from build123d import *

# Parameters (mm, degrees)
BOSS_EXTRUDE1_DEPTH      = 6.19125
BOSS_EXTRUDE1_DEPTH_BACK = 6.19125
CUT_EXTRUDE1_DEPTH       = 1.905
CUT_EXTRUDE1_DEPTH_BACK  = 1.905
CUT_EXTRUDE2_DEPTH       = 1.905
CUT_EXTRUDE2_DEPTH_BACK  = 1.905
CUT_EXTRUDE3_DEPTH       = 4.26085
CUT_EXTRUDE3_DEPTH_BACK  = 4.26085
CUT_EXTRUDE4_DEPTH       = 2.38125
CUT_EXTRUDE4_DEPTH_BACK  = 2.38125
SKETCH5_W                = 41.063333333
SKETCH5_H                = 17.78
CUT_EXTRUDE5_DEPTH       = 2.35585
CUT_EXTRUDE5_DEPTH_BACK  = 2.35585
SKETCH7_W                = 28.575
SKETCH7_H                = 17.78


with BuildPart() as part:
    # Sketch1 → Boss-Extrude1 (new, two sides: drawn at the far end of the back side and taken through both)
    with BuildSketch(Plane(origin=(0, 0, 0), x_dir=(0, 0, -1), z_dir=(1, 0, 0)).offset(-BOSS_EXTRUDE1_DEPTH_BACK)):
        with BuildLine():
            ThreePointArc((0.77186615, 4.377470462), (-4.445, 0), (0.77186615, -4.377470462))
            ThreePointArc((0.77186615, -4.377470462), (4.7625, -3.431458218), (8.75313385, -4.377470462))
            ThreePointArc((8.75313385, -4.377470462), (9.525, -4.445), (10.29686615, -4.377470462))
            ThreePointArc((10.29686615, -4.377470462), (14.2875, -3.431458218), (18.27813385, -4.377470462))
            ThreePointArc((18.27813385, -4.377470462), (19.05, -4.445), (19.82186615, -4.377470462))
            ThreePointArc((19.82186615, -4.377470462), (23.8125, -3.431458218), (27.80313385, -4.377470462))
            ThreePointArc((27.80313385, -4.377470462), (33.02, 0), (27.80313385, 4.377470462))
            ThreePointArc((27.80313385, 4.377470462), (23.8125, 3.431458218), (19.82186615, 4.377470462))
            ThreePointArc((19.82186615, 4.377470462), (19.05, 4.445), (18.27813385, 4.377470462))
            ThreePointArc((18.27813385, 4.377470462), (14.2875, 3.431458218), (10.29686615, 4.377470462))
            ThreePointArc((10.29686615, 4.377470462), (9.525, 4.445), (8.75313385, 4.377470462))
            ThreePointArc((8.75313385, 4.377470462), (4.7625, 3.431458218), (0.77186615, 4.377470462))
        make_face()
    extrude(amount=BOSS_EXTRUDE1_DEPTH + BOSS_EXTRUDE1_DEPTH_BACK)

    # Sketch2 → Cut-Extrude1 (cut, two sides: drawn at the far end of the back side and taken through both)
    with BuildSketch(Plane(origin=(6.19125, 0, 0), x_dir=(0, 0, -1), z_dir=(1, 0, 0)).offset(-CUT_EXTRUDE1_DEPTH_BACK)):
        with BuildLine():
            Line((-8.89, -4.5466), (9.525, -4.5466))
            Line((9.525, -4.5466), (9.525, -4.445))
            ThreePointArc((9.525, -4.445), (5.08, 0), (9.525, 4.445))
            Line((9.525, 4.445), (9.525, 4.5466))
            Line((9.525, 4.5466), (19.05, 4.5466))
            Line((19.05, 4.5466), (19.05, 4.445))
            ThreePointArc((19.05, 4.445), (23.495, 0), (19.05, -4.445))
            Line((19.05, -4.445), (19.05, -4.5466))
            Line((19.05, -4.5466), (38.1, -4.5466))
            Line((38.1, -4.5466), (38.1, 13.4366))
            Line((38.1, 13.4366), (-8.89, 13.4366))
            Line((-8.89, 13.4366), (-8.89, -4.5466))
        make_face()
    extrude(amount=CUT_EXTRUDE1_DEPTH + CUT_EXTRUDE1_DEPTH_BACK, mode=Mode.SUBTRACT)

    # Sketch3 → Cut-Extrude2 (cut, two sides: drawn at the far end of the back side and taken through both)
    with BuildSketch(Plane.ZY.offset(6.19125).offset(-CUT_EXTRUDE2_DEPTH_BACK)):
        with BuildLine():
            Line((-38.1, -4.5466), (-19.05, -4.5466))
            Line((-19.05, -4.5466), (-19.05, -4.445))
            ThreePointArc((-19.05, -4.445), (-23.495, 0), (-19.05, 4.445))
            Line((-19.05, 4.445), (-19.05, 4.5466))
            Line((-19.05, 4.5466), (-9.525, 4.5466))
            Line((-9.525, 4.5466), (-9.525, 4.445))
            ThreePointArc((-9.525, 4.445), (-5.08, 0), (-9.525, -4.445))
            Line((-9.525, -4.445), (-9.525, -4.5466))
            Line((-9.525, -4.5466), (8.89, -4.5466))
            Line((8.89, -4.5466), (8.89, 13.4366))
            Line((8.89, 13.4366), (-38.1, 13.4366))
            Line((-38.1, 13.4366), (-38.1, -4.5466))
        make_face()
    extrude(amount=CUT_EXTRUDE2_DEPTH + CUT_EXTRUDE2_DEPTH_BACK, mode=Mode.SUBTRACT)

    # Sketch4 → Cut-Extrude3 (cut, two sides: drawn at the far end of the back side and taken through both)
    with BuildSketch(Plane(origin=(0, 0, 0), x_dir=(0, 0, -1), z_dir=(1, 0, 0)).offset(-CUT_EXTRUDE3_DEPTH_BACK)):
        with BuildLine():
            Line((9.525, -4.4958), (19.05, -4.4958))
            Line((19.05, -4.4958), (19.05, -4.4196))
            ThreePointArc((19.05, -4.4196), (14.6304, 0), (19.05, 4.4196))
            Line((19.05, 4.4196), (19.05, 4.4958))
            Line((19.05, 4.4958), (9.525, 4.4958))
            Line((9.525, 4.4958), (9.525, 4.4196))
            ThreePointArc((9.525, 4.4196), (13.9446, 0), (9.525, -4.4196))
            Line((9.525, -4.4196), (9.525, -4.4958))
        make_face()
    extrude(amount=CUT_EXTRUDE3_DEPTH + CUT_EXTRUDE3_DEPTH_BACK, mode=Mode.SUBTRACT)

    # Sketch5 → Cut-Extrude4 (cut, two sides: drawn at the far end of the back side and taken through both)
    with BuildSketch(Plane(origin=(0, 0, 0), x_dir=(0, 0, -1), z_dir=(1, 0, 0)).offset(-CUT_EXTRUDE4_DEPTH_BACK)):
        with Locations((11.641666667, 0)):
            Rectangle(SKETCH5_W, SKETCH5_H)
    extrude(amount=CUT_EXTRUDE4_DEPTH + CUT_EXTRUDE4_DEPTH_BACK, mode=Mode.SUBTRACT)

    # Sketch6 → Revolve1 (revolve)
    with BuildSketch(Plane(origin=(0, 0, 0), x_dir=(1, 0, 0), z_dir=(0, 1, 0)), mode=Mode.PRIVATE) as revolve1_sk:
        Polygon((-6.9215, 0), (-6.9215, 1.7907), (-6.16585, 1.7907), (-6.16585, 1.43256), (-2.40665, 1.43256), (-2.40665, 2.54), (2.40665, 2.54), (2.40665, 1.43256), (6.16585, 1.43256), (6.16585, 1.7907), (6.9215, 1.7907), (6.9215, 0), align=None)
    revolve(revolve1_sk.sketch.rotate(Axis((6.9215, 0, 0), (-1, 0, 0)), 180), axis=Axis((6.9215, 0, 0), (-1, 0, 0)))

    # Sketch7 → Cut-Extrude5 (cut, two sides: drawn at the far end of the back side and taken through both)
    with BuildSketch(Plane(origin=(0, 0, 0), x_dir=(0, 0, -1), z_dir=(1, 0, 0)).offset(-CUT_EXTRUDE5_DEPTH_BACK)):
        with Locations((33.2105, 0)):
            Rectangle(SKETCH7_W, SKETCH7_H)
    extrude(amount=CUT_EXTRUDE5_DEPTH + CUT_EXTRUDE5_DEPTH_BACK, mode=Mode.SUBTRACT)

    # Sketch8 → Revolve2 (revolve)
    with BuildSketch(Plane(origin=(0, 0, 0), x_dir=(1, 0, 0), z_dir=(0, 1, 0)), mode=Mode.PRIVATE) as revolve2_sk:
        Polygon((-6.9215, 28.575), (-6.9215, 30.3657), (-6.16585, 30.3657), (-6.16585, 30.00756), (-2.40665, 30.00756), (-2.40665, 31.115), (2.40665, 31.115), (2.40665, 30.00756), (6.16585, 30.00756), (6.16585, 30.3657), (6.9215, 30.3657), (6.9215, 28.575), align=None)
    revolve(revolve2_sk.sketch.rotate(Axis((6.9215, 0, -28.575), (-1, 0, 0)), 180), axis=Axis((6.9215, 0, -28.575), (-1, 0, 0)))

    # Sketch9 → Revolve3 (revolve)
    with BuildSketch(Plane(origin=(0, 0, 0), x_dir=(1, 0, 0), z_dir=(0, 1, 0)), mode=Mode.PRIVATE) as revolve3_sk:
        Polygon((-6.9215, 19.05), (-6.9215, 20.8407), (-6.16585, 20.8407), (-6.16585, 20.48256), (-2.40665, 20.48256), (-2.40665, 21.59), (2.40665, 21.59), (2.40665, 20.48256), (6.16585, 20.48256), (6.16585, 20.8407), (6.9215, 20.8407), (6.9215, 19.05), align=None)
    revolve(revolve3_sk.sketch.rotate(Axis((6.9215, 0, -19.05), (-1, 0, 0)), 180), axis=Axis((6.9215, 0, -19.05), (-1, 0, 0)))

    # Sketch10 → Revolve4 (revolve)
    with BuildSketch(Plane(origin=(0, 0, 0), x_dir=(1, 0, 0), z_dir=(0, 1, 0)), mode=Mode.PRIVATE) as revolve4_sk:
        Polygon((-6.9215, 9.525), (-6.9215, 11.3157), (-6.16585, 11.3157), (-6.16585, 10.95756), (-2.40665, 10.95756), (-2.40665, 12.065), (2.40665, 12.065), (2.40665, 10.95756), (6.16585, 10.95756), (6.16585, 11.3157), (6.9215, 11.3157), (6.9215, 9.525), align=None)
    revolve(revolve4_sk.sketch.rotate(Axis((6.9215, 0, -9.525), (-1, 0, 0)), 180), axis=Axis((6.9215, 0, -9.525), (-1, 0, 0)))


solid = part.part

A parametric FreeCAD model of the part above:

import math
import FreeCAD as App
import Part
import Sketcher

V = App.Vector
Q = App.Units.Quantity

doc = App.newDocument("Part")
body = doc.addObject("PartDesign::Body", "Body")

sketch1 = body.newObject("Sketcher::SketchObject", "Sketch")
sketch1.AttachmentSupport = (doc.getObject("YZ_Plane"), [""])
sketch1.MapMode = "FlatFace"
sketch1.addGeometry([
    Part.ArcOfCircle(Part.Circle(V(0, 0, 0), V(0, 0, 1), 4.4), math.radians(-10), math.radians(190)),
    Part.ArcOfCircle(Part.Circle(V(-12.3, -4.8, 0), V(0, 0, 1), 8.9), math.radians(-27), math.radians(27)),
    Part.ArcOfCircle(Part.Circle(V(0, -9.5, 0), V(0, 0, 1), 4.4), math.radians(170), math.radians(190)),
    Part.ArcOfCircle(Part.Circle(V(-12.3, -14.3, 0), V(0, 0, 1), 8.9), math.radians(-27), math.radians(27)),
    Part.ArcOfCircle(Part.Circle(V(0, -19.1, 0), V(0, 0, 1), 4.4), math.radians(170), math.radians(190)),
    Part.ArcOfCircle(Part.Circle(V(-12.3, -23.8, 0), V(0, 0, 1), 8.9), math.radians(-27), math.radians(27)),
    Part.ArcOfCircle(Part.Circle(V(0, -28.6, 0), V(0, 0, 1), 4.4), math.radians(170), math.radians(370)),
    Part.ArcOfCircle(Part.Circle(V(12.3, -23.8, 0), V(0, 0, 1), 8.9), math.radians(153), math.radians(207)),
    Part.ArcOfCircle(Part.Circle(V(0, -19.1, 0), V(0, 0, 1), 4.4), math.radians(-10), math.radians(10)),
    Part.ArcOfCircle(Part.Circle(V(12.3, -14.3, 0), V(0, 0, 1), 8.9), math.radians(153), math.radians(207)),
    Part.ArcOfCircle(Part.Circle(V(0, -9.5, 0), V(0, 0, 1), 4.4), math.radians(-10), math.radians(10)),
    Part.ArcOfCircle(Part.Circle(V(12.3, -4.8, 0), V(0, 0, 1), 8.9), math.radians(153), math.radians(207)),
], False)
sketch1.addConstraint([
    Sketcher.Constraint("Coincident", 0, 2, 1, 2),
    Sketcher.Constraint("Coincident", 1, 1, 2, 1),
    Sketcher.Constraint("Coincident", 2, 2, 3, 2),
    Sketcher.Constraint("Coincident", 3, 1, 4, 1),
    Sketcher.Constraint("Coincident", 4, 2, 5, 2),
    Sketcher.Constraint("Coincident", 5, 1, 6, 1),
    Sketcher.Constraint("Coincident", 6, 2, 7, 2),
    Sketcher.Constraint("Coincident", 7, 1, 8, 1),
    Sketcher.Constraint("Coincident", 8, 2, 9, 2),
    Sketcher.Constraint("Coincident", 9, 1, 10, 1),
    Sketcher.Constraint("Coincident", 10, 2, 11, 2),
    Sketcher.Constraint("Coincident", 11, 1, 0, 1),
    Sketcher.Constraint("Coincident", 0, 3, -1, 1),
    Sketcher.Constraint("Coincident", 8, 3, 4, 3),
    Sketcher.Constraint("Coincident", 10, 3, 2, 3),
    Sketcher.Constraint("Equal", 0, 2),
    Sketcher.Constraint("Equal", 1, 3),
    Sketcher.Constraint("Equal", 2, 4),
    Sketcher.Constraint("Equal", 3, 5),
    Sketcher.Constraint("Equal", 4, 6),
    Sketcher.Constraint("Equal", 5, 7),
    Sketcher.Constraint("Equal", 6, 8),
    Sketcher.Constraint("Equal", 7, 9),
    Sketcher.Constraint("Equal", 8, 10),
    Sketcher.Constraint("Equal", 9, 11),
    Sketcher.Constraint("Symmetric", 5, 3, 7, 3, -2),
    Sketcher.Constraint("Symmetric", 3, 3, 9, 3, -2),
    Sketcher.Constraint("Symmetric", 1, 3, 11, 3, -2),
    Sketcher.Constraint("PointOnObject", 2, 3, -2),
    Sketcher.Constraint("PointOnObject", 4, 3, -2),
    Sketcher.Constraint("PointOnObject", 6, 3, -2),
    Sketcher.Constraint("Vertical", 1, 3, 3, 3),
    Sketcher.Constraint("Vertical", 3, 3, 5, 3),
    Sketcher.Constraint("Vertical", 0, 2, 1, 1),
    Sketcher.Constraint("Vertical", 1, 1, 2, 2),
    Sketcher.Constraint("Vertical", 2, 2, 3, 1),
    Sketcher.Constraint("Vertical", 3, 1, 4, 2),
    Sketcher.Constraint("Vertical", 4, 2, 5, 1),
    Sketcher.Constraint("Radius", 1, Q("0.35 in")),
    Sketcher.Constraint("Radius", 0, Q("0.175 in")),
    Sketcher.Constraint("DistanceY", 4, 3, -1, 1, Q("0.75 in")),
    Sketcher.Constraint("DistanceX", 1, 3, -1, 1, 12.321458),
])
pad1 = body.newObject("PartDesign::Pad", "Pad")
pad1.Profile = sketch1
pad1.Type = "TwoLengths"
pad1.Length = 6.19125
pad1.Length2 = 6.19125

sketch2 = body.newObject("Sketcher::SketchObject", "Sketch001")
sketch2.AttachmentSupport = (doc.getObject("YZ_Plane"), [""])
sketch2.MapMode = "FlatFace"
sketch2.AttachmentOffset = App.Placement(V(0, 0, 6.19125), App.Rotation())
sketch2.addGeometry([
    Part.LineSegment(V(-4.55, 8.89, 0), V(-4.55, -9.53, 0)),
    Part.LineSegment(V(-4.55, -9.53, 0), V(-4.45, -9.53, 0)),
    Part.ArcOfCircle(Part.Circle(V(0, -9.53, 0), V(0, 0, 1), 4.45), math.radians(0), math.radians(180)),
    Part.LineSegment(V(4.45, -9.53, 0), V(4.55, -9.53, 0)),
    Part.LineSegment(V(4.55, -9.53, 0), V(4.55, -19.05, 0)),
    Part.LineSegment(V(4.55, -19.05, 0), V(4.45, -19.05, 0)),
    Part.ArcOfCircle(Part.Circle(V(0, -19.05, 0), V(0, 0, 1), 4.45), math.radians(180), math.radians(360)),
    Part.LineSegment(V(-4.45, -19.05, 0), V(-4.55, -19.05, 0)),
    Part.LineSegment(V(-4.55, -19.05, 0), V(-4.55, -38.1, 0)),
    Part.LineSegment(V(-4.55, -38.1, 0), V(13.44, -38.1, 0)),
    Part.LineSegment(V(13.44, -38.1, 0), V(13.44, 8.89, 0)),
    Part.LineSegment(V(13.44, 8.89, 0), V(-4.55, 8.89, 0)),
], False)
sketch2.addConstraint([
    Sketcher.Constraint("Coincident", 0, 2, 1, 1),
    Sketcher.Constraint("Coincident", 1, 2, 2, 2),
    Sketcher.Constraint("Coincident", 2, 1, 3, 1),
    Sketcher.Constraint("Coincident", 3, 2, 4, 1),
    Sketcher.Constraint("Coincident", 4, 2, 5, 1),
    Sketcher.Constraint("Coincident", 5, 2, 6, 2),
    Sketcher.Constraint("Coincident", 6, 1, 7, 1),
    Sketcher.Constraint("Coincident", 7, 2, 8, 1),
    Sketcher.Constraint("Coincident", 8, 2, 9, 1),
    Sketcher.Constraint("Coincident", 9, 2, 10, 1),
    Sketcher.Constraint("Coincident", 10, 2, 11, 1),
    Sketcher.Constraint("Coincident", 11, 2, 0, 1),
    Sketcher.Constraint("Vertical", 0),
    Sketcher.Constraint("Horizontal", 1),
    Sketcher.Constraint("Horizontal", 3),
    Sketcher.Constraint("Vertical", 4),
    Sketcher.Constraint("Horizontal", 5),
    Sketcher.Constraint("Horizontal", 7),
    Sketcher.Constraint("Vertical", 8),
    Sketcher.Constraint("Horizontal", 9),
    Sketcher.Constraint("Vertical", 10),
    Sketcher.Constraint("Horizontal", 11),
    Sketcher.Constraint("Equal", 2, 6),
    Sketcher.Constraint("Symmetric", 1, 2, 2, 1, -2),
    Sketcher.Constraint("Symmetric", 5, 2, 6, 1, -2),
    Sketcher.Constraint("Horizontal", 2, 3, 0, 2),
    Sketcher.Constraint("Horizontal", 6, 3, 4, 2),
    Sketcher.Constraint("Vertical", 0, 2, 7, 2),
    Sketcher.Constraint("Equal", 1, 3),
    Sketcher.Constraint("Radius", 2, Q("0.175 in")),
    Sketcher.Constraint("DistanceY", 8, 2, 8, 1, Q("0.75 in")),
    Sketcher.Constraint("DistanceY", 10, 1, 10, 2, Q("1.85 in")),
    Sketcher.Constraint("DistanceY", 8, 2, -1, 1, Q("1.5 in")),
    Sketcher.Constraint("DistanceX", 1, 1, 1, 2, Q("0.004 in")),
    Sketcher.Constraint("DistanceX", 9, 1, 9, 2, Q("0.708 in")),
    Sketcher.Constraint("DistanceY", 0, 2, 0, 1, Q("0.725 in")),
])
pocket1 = body.newObject("PartDesign::Pocket", "Pocket")
pocket1.Profile = sketch2
pocket1.Type = "TwoLengths"
pocket1.Length = Q("0.075 in")
pocket1.Length2 = Q("0.075 in")
pocket1.Reversed = True

sketch3 = body.newObject("Sketcher::SketchObject", "Sketch002")
sketch3.AttachmentSupport = (doc.getObject("YZ_Plane"), [""])
sketch3.MapMode = "FlatFace"
sketch3.AttachmentOffset = App.Placement(V(0, 0, -6.19125), App.Rotation())
sketch3.addGeometry([
    Part.LineSegment(V(-4.55, -38.1, 0), V(-4.55, -19.05, 0)),
    Part.LineSegment(V(-4.55, -19.05, 0), V(-4.45, -19.05, 0)),
    Part.ArcOfCircle(Part.Circle(V(0, -19.05, 0), V(0, 0, 1), 4.45), math.radians(180), math.radians(360)),
    Part.LineSegment(V(4.45, -19.05, 0), V(4.55, -19.05, 0)),
    Part.LineSegment(V(4.55, -19.05, 0), V(4.55, -9.53, 0)),
    Part.LineSegment(V(4.55, -9.53, 0), V(4.45, -9.53, 0)),
    Part.ArcOfCircle(Part.Circle(V(0, -9.53, 0), V(0, 0, 1), 4.45), math.radians(0), math.radians(180)),
    Part.LineSegment(V(-4.45, -9.53, 0), V(-4.55, -9.53, 0)),
    Part.LineSegment(V(-4.55, -9.53, 0), V(-4.55, 8.89, 0)),
    Part.LineSegment(V(-4.55, 8.89, 0), V(13.44, 8.89, 0)),
    Part.LineSegment(V(13.44, 8.89, 0), V(13.44, -38.1, 0)),
    Part.LineSegment(V(13.44, -38.1, 0), V(-4.55, -38.1, 0)),
], False)
sketch3.addConstraint([
    Sketcher.Constraint("Coincident", 0, 2, 1, 1),
    Sketcher.Constraint("Coincident", 1, 2, 2, 1),
    Sketcher.Constraint("Coincident", 2, 2, 3, 1),
    Sketcher.Constraint("Coincident", 3, 2, 4, 1),
    Sketcher.Constraint("Coincident", 4, 2, 5, 1),
    Sketcher.Constraint("Coincident", 5, 2, 6, 1),
    Sketcher.Constraint("Coincident", 6, 2, 7, 1),
    Sketcher.Constraint("Coincident", 7, 2, 8, 1),
    Sketcher.Constraint("Coincident", 8, 2, 9, 1),
    Sketcher.Constraint("Coincident", 9, 2, 10, 1),
    Sketcher.Constraint("Coincident", 10, 2, 11, 1),
    Sketcher.Constraint("Coincident", 11, 2, 0, 1),
    Sketcher.Constraint("Vertical", 0),
    Sketcher.Constraint("Horizontal", 1),
    Sketcher.Constraint("Horizontal", 3),
    Sketcher.Constraint("Vertical", 4),
    Sketcher.Constraint("Horizontal", 5),
    Sketcher.Constraint("Horizontal", 7),
    Sketcher.Constraint("Vertical", 8),
    Sketcher.Constraint("Horizontal", 9),
    Sketcher.Constraint("Vertical", 10),
    Sketcher.Constraint("Horizontal", 11),
    Sketcher.Constraint("Equal", 2, 6),
    Sketcher.Constraint("Symmetric", 1, 2, 2, 2, -2),
    Sketcher.Constraint("Symmetric", 5, 2, 6, 2, -2),
    Sketcher.Constraint("Horizontal", 2, 3, 0, 2),
    Sketcher.Constraint("Horizontal", 6, 3, 4, 2),
    Sketcher.Constraint("Vertical", 0, 2, 7, 2),
    Sketcher.Constraint("Equal", 1, 3),
    Sketcher.Constraint("Radius", 2, Q("0.175 in")),
    Sketcher.Constraint("DistanceY", 0, 1, 0, 2, Q("0.75 in")),
    Sketcher.Constraint("DistanceY", 10, 2, 10, 1, Q("1.85 in")),
    Sketcher.Constraint("DistanceY", 10, 2, -1, 1, Q("1.5 in")),
    Sketcher.Constraint("DistanceX", 1, 1, 1, 2, Q("0.004 in")),
    Sketcher.Constraint("DistanceX", 9, 1, 9, 2, Q("0.708 in")),
    Sketcher.Constraint("DistanceY", 4, 1, 4, 2, Q("0.375 in")),
])
pocket2 = body.newObject("PartDesign::Pocket", "Pocket001")
pocket2.Profile = sketch3
pocket2.Type = "TwoLengths"
pocket2.Length = Q("0.075 in")
pocket2.Length2 = Q("0.075 in")

sketch4 = body.newObject("Sketcher::SketchObject", "Sketch003")
sketch4.AttachmentSupport = (doc.getObject("YZ_Plane"), [""])
sketch4.MapMode = "FlatFace"
sketch4.addGeometry([
    Part.LineSegment(V(-4.5, -9.53, 0), V(-4.5, -19.05, 0)),
    Part.LineSegment(V(-4.5, -19.05, 0), V(-4.42, -19.05, 0)),
    Part.ArcOfCircle(Part.Circle(V(0, -19.05, 0), V(0, 0, 1), 4.42), math.radians(0), math.radians(180)),
    Part.LineSegment(V(4.42, -19.05, 0), V(4.5, -19.05, 0)),
    Part.LineSegment(V(4.5, -19.05, 0), V(4.5, -9.53, 0)),
    Part.LineSegment(V(4.5, -9.53, 0), V(4.42, -9.53, 0)),
    Part.ArcOfCircle(Part.Circle(V(0, -9.53, 0), V(0, 0, 1), 4.42), math.radians(180), math.radians(360)),
    Part.LineSegment(V(-4.42, -9.53, 0), V(-4.5, -9.53, 0)),
], False)
sketch4.addConstraint([
    Sketcher.Constraint("Coincident", 0, 2, 1, 1),
    Sketcher.Constraint("Coincident", 1, 2, 2, 2),
    Sketcher.Constraint("Coincident", 2, 1, 3, 1),
    Sketcher.Constraint("Coincident", 3, 2, 4, 1),
    Sketcher.Constraint("Coincident", 4, 2, 5, 1),
    Sketcher.Constraint("Coincident", 5, 2, 6, 2),
    Sketcher.Constraint("Coincident", 6, 1, 7, 1),
    Sketcher.Constraint("Coincident", 7, 2, 0, 1),
    Sketcher.Constraint("Vertical", 0),
    Sketcher.Constraint("Horizontal", 1),
    Sketcher.Constraint("Horizontal", 3),
    Sketcher.Constraint("Vertical", 4),
    Sketcher.Constraint("Horizontal", 5),
    Sketcher.Constraint("Horizontal", 7),
    Sketcher.Constraint("Equal", 2, 6),
    Sketcher.Constraint("Symmetric", 1, 2, 2, 1, -2),
    Sketcher.Constraint("Symmetric", 5, 2, 6, 1, -2),
    Sketcher.Constraint("Horizontal", 2, 3, 0, 2),
    Sketcher.Constraint("Horizontal", 6, 3, 4, 2),
    Sketcher.Constraint("Equal", 1, 3),
    Sketcher.Constraint("Radius", 2, Q("0.174 in")),
    Sketcher.Constraint("DistanceX", 1, 1, 1, 2, Q("0.003 in")),
    Sketcher.Constraint("DistanceY", 0, 2, 0, 1, Q("0.375 in")),
    Sketcher.Constraint("DistanceY", 2, 3, -1, 1, Q("0.75 in")),
])
pocket3 = body.newObject("PartDesign::Pocket", "Pocket002")
pocket3.Profile = sketch4
pocket3.Type = "TwoLengths"
pocket3.Length = 4.26085
pocket3.Length2 = 4.26085
pocket3.Reversed = True

sketch5 = body.newObject("Sketcher::SketchObject", "Sketch004")
sketch5.AttachmentSupport = (doc.getObject("YZ_Plane"), [""])
sketch5.MapMode = "FlatFace"
sketch5.addGeometry([
    Part.LineSegment(V(9, 9, 0), V(-9, 9, 0)),
    Part.LineSegment(V(-9, 9, 0), V(-9, -32, 0)),
    Part.LineSegment(V(-9, -32, 0), V(9, -32, 0)),
    Part.LineSegment(V(9, -32, 0), V(9, 9, 0)),
], False)
sketch5.addConstraint([
    Sketcher.Constraint("Coincident", 0, 2, 1, 1),
    Sketcher.Constraint("Coincident", 1, 2, 2, 1),
    Sketcher.Constraint("Coincident", 2, 2, 3, 1),
    Sketcher.Constraint("Coincident", 3, 2, 0, 1),
    Sketcher.Constraint("Horizontal", 0),
    Sketcher.Constraint("Vertical", 1),
    Sketcher.Constraint("Horizontal", 2),
    Sketcher.Constraint("Vertical", 3),
    Sketcher.Constraint("DistanceX", 0, 2, 0, 1, Q("0.7 in")),
    Sketcher.Constraint("DistanceX", 0, 2, -1, 1, Q("0.35 in")),
    Sketcher.Constraint("DistanceY", -1, 1, 0, 2, Q("0.35 in")),
    Sketcher.Constraint("DistanceY", 1, 2, 1, 1, 41.063333),
])
pocket4 = body.newObject("PartDesign::Pocket", "Pocket003")
pocket4.Profile = sketch5
pocket4.Type = "TwoLengths"
pocket4.Length = Q("0.09375 in")
pocket4.Length2 = Q("0.09375 in")
pocket4.Reversed = True

sketch6 = body.newObject("Sketcher::SketchObject", "Sketch005")
sketch6.AttachmentSupport = (doc.getObject("XZ_Plane"), [""])
sketch6.MapMode = "FlatFace"
sketch6.addGeometry([
    Part.LineSegment(V(-6.92, -1.79, 0), V(-6.92, 0, 0)),
    Part.LineSegment(V(-6.92, 0, 0), V(6.92, 0, 0)),
    Part.LineSegment(V(6.92, 0, 0), V(6.92, -1.79, 0)),
    Part.LineSegment(V(6.92, -1.79, 0), V(6.17, -1.79, 0)),
    Part.LineSegment(V(6.17, -1.79, 0), V(6.17, -1.43, 0)),
    Part.LineSegment(V(6.17, -1.43, 0), V(2.41, -1.43, 0)),
    Part.LineSegment(V(2.41, -1.43, 0), V(2.41, -2.54, 0)),
    Part.LineSegment(V(2.41, -2.54, 0), V(-2.41, -2.54, 0)),
    Part.LineSegment(V(-2.41, -2.54, 0), V(-2.41, -1.43, 0)),
    Part.LineSegment(V(-2.41, -1.43, 0), V(-6.17, -1.43, 0)),
    Part.LineSegment(V(-6.17, -1.43, 0), V(-6.17, -1.79, 0)),
    Part.LineSegment(V(-6.17, -1.79, 0), V(-6.92, -1.79, 0)),
], False)
sketch6.addConstraint([
    Sketcher.Constraint("Coincident", 0, 2, 1, 1),
    Sketcher.Constraint("Coincident", 1, 2, 2, 1),
    Sketcher.Constraint("Coincident", 2, 2, 3, 1),
    Sketcher.Constraint("Coincident", 3, 2, 4, 1),
    Sketcher.Constraint("Coincident", 4, 2, 5, 1),
    Sketcher.Constraint("Coincident", 5, 2, 6, 1),
    Sketcher.Constraint("Coincident", 6, 2, 7, 1),
    Sketcher.Constraint("Coincident", 7, 2, 8, 1),
    Sketcher.Constraint("Coincident", 8, 2, 9, 1),
    Sketcher.Constraint("Coincident", 9, 2, 10, 1),
    Sketcher.Constraint("Coincident", 10, 2, 11, 1),
    Sketcher.Constraint("Coincident", 11, 2, 0, 1),
    Sketcher.Constraint("Vertical", 0),
    Sketcher.Constraint("Horizontal", 1),
    Sketcher.Constraint("Vertical", 2),
    Sketcher.Constraint("Horizontal", 3),
    Sketcher.Constraint("Vertical", 4),
    Sketcher.Constraint("Horizontal", 5),
    Sketcher.Constraint("Vertical", 6),
    Sketcher.Constraint("Horizontal", 7),
    Sketcher.Constraint("Vertical", 8),
    Sketcher.Constraint("Horizontal", 9),
    Sketcher.Constraint("Vertical", 10),
    Sketcher.Constraint("Horizontal", 11),
    Sketcher.Constraint("Symmetric", 0, 2, 1, 2, -1, 1),
    Sketcher.Constraint("Symmetric", 5, 2, 8, 2, -2),
    Sketcher.Constraint("Symmetric", 3, 2, 10, 2, -2),
    Sketcher.Constraint("DistanceY", 6, 2, -1, 1, Q("0.1 in")),
    Sketcher.Constraint("DistanceX", 1, 1, 1, 2, Q("0.545 in")),
    Sketcher.Constraint("DistanceX", 5, 2, 5, 1, Q("0.148 in")),
    Sketcher.Constraint("DistanceX", 7, 2, 7, 1, Q("0.1895 in")),
    Sketcher.Constraint("DistanceY", 0, 1, 0, 2, Q("0.0705 in")),
    Sketcher.Constraint("DistanceY", 4, 1, 4, 2, Q("0.0141 in")),
])
revolution = body.newObject("PartDesign::Revolution", "Revolution")
revolution.Profile = sketch6
revolution.ReferenceAxis = (sketch6, ["H_Axis"])
revolution.Angle = 360

sketch7 = body.newObject("Sketcher::SketchObject", "Sketch006")
sketch7.AttachmentSupport = (doc.getObject("YZ_Plane"), [""])
sketch7.MapMode = "FlatFace"
sketch7.addGeometry([
    Part.LineSegment(V(9, -19, 0), V(-9, -19, 0)),
    Part.LineSegment(V(-9, -19, 0), V(-9, -47, 0)),
    Part.LineSegment(V(-9, -47, 0), V(9, -47, 0)),
    Part.LineSegment(V(9, -47, 0), V(9, -19, 0)),
], False)
sketch7.addConstraint([
    Sketcher.Constraint("Coincident", 0, 2, 1, 1),
    Sketcher.Constraint("Coincident", 1, 2, 2, 1),
    Sketcher.Constraint("Coincident", 2, 2, 3, 1),
    Sketcher.Constraint("Coincident", 3, 2, 0, 1),
    Sketcher.Constraint("Horizontal", 0),
    Sketcher.Constraint("Vertical", 1),
    Sketcher.Constraint("Horizontal", 2),
    Sketcher.Constraint("Vertical", 3),
    Sketcher.Constraint("DistanceX", 0, 2, 0, 1, Q("0.7 in")),
    Sketcher.Constraint("DistanceY", 1, 2, 1, 1, Q("1.125 in")),
    Sketcher.Constraint("DistanceX", 0, 2, -1, 1, Q("0.35 in")),
    Sketcher.Constraint("DistanceY", 1, 2, -1, 1, Q("1.87 in")),
])
pocket5 = body.newObject("PartDesign::Pocket", "Pocket004")
pocket5.Profile = sketch7
pocket5.Type = "TwoLengths"
pocket5.Length = 2.35585
pocket5.Length2 = 2.35585
pocket5.Reversed = True

sketch8 = body.newObject("Sketcher::SketchObject", "Sketch007")
sketch8.AttachmentSupport = (doc.getObject("XZ_Plane"), [""])
sketch8.MapMode = "FlatFace"
sketch8.addGeometry([
    Part.LineSegment(V(-6.92, -30.37, 0), V(-6.92, -28.57, 0)),
    Part.LineSegment(V(-6.92, -28.57, 0), V(6.92, -28.57, 0)),
    Part.LineSegment(V(6.92, -28.57, 0), V(6.92, -30.37, 0)),
    Part.LineSegment(V(6.92, -30.37, 0), V(6.17, -30.37, 0)),
    Part.LineSegment(V(6.17, -30.37, 0), V(6.17, -30.01, 0)),
    Part.LineSegment(V(6.17, -30.01, 0), V(2.41, -30.01, 0)),
    Part.LineSegment(V(2.41, -30.01, 0), V(2.41, -31.11, 0)),
    Part.LineSegment(V(2.41, -31.11, 0), V(-2.41, -31.11, 0)),
    Part.LineSegment(V(-2.41, -31.11, 0), V(-2.41, -30.01, 0)),
    Part.LineSegment(V(-2.41, -30.01, 0), V(-6.17, -30.01, 0)),
    Part.LineSegment(V(-6.17, -30.01, 0), V(-6.17, -30.37, 0)),
    Part.LineSegment(V(-6.17, -30.37, 0), V(-6.92, -30.37, 0)),
], False)
sketch8.addGeometry(Part.LineSegment(V(6.92, -28.57, 0), V(-6.92, -28.57, 0)), True)
sketch8.addConstraint([
    Sketcher.Constraint("Coincident", 0, 2, 1, 1),
    Sketcher.Constraint("Coincident", 1, 2, 2, 1),
    Sketcher.Constraint("Coincident", 2, 2, 3, 1),
    Sketcher.Constraint("Coincident", 3, 2, 4, 1),
    Sketcher.Constraint("Coincident", 4, 2, 5, 1),
    Sketcher.Constraint("Coincident", 5, 2, 6, 1),
    Sketcher.Constraint("Coincident", 6, 2, 7, 1),
    Sketcher.Constraint("Coincident", 7, 2, 8, 1),
    Sketcher.Constraint("Coincident", 8, 2, 9, 1),
    Sketcher.Constraint("Coincident", 9, 2, 10, 1),
    Sketcher.Constraint("Coincident", 10, 2, 11, 1),
    Sketcher.Constraint("Coincident", 11, 2, 0, 1),
    Sketcher.Constraint("Vertical", 0),
    Sketcher.Constraint("Horizontal", 1),
    Sketcher.Constraint("Vertical", 2),
    Sketcher.Constraint("Horizontal", 3),
    Sketcher.Constraint("Vertical", 4),
    Sketcher.Constraint("Horizontal", 5),
    Sketcher.Constraint("Vertical", 6),
    Sketcher.Constraint("Horizontal", 7),
    Sketcher.Constraint("Vertical", 8),
    Sketcher.Constraint("Horizontal", 9),
    Sketcher.Constraint("Vertical", 10),
    Sketcher.Constraint("Horizontal", 11),
    Sketcher.Constraint("Horizontal", 12),
    Sketcher.Constraint("Coincident", 12, 1, 1, 2),
    Sketcher.Constraint("Symmetric", 5, 2, 8, 2, -2),
    Sketcher.Constraint("Symmetric", 3, 2, 10, 2, -2),
    Sketcher.Constraint("Vertical", 11, 2, 12, 2),
    Sketcher.Constraint("Equal", 3, 11),
    Sketcher.Constraint("DistanceY", 6, 2, 1, 2, Q("0.1 in")),
    Sketcher.Constraint("DistanceX", 1, 1, 1, 2, Q("0.545 in")),
    Sketcher.Constraint("DistanceX", 5, 2, 5, 1, Q("0.148 in")),
    Sketcher.Constraint("DistanceX", 7, 2, 7, 1, Q("0.1895 in")),
    Sketcher.Constraint("DistanceY", 0, 1, 0, 2, Q("0.0705 in")),
    Sketcher.Constraint("DistanceY", 4, 1, 4, 2, Q("0.0141 in")),
    Sketcher.Constraint("DistanceY", 0, 2, -1, 1, Q("1.125 in")),
])
revolution2 = body.newObject("PartDesign::Revolution", "Revolution001")
revolution2.Profile = sketch8
revolution2.ReferenceAxis = (sketch8, ["Axis0"])
revolution2.Angle = 360

sketch9 = body.newObject("Sketcher::SketchObject", "Sketch008")
sketch9.AttachmentSupport = (doc.getObject("XZ_Plane"), [""])
sketch9.MapMode = "FlatFace"
sketch9.addGeometry([
    Part.LineSegment(V(-6.92, -20.84, 0), V(-6.92, -19.05, 0)),
    Part.LineSegment(V(-6.92, -19.05, 0), V(6.92, -19.05, 0)),
    Part.LineSegment(V(6.92, -19.05, 0), V(6.92, -20.84, 0)),
    Part.LineSegment(V(6.92, -20.84, 0), V(6.17, -20.84, 0)),
    Part.LineSegment(V(6.17, -20.84, 0), V(6.17, -20.48, 0)),
    Part.LineSegment(V(6.17, -20.48, 0), V(2.41, -20.48, 0)),
    Part.LineSegment(V(2.41, -20.48, 0), V(2.41, -21.59, 0)),
    Part.LineSegment(V(2.41, -21.59, 0), V(-2.41, -21.59, 0)),
    Part.LineSegment(V(-2.41, -21.59, 0), V(-2.41, -20.48, 0)),
    Part.LineSegment(V(-2.41, -20.48, 0), V(-6.17, -20.48, 0)),
    Part.LineSegment(V(-6.17, -20.48, 0), V(-6.17, -20.84, 0)),
    Part.LineSegment(V(-6.17, -20.84, 0), V(-6.92, -20.84, 0)),
], False)
sketch9.addGeometry(Part.LineSegment(V(6.92, -19.05, 0), V(-6.92, -19.05, 0)), True)
sketch9.addConstraint([
    Sketcher.Constraint("Coincident", 0, 2, 1, 1),
    Sketcher.Constraint("Coincident", 1, 2, 2, 1),
    Sketcher.Constraint("Coincident", 2, 2, 3, 1),
    Sketcher.Constraint("Coincident", 3, 2, 4, 1),
    Sketcher.Constraint("Coincident", 4, 2, 5, 1),
    Sketcher.Constraint("Coincident", 5, 2, 6, 1),
    Sketcher.Constraint("Coincident", 6, 2, 7, 1),
    Sketcher.Constraint("Coincident", 7, 2, 8, 1),
    Sketcher.Constraint("Coincident", 8, 2, 9, 1),
    Sketcher.Constraint("Coincident", 9, 2, 10, 1),
    Sketcher.Constraint("Coincident", 10, 2, 11, 1),
    Sketcher.Constraint("Coincident", 11, 2, 0, 1),
    Sketcher.Constraint("Vertical", 0),
    Sketcher.Constraint("Horizontal", 1),
    Sketcher.Constraint("Vertical", 2),
    Sketcher.Constraint("Horizontal", 3),
    Sketcher.Constraint("Vertical", 4),
    Sketcher.Constraint("Horizontal", 5),
    Sketcher.Constraint("Vertical", 6),
    Sketcher.Constraint("Horizontal", 7),
    Sketcher.Constraint("Vertical", 8),
    Sketcher.Constraint("Horizontal", 9),
    Sketcher.Constraint("Vertical", 10),
    Sketcher.Constraint("Horizontal", 11),
    Sketcher.Constraint("Horizontal", 12),
    Sketcher.Constraint("Coincident", 12, 1, 1, 2),
    Sketcher.Constraint("Symmetric", 5, 2, 8, 2, -2),
    Sketcher.Constraint("Symmetric", 3, 2, 10, 2, -2),
    Sketcher.Constraint("Vertical", 11, 2, 12, 2),
    Sketcher.Constraint("Equal", 3, 11),
    Sketcher.Constraint("DistanceY", 6, 2, 1, 2, Q("0.1 in")),
    Sketcher.Constraint("DistanceX", 1, 1, 1, 2, Q("0.545 in")),
    Sketcher.Constraint("DistanceX", 5, 2, 5, 1, Q("0.148 in")),
    Sketcher.Constraint("DistanceY", 0, 2, -1, 1, Q("0.75 in")),
    Sketcher.Constraint("DistanceX", 7, 2, 7, 1, Q("0.1895 in")),
    Sketcher.Constraint("DistanceY", 0, 1, 0, 2, Q("0.0705 in")),
    Sketcher.Constraint("DistanceY", 4, 1, 4, 2, Q("0.0141 in")),
])
revolution3 = body.newObject("PartDesign::Revolution", "Revolution002")
revolution3.Profile = sketch9
revolution3.ReferenceAxis = (sketch9, ["Axis0"])
revolution3.Angle = 360

sketch10 = body.newObject("Sketcher::SketchObject", "Sketch009")
sketch10.AttachmentSupport = (doc.getObject("XZ_Plane"), [""])
sketch10.MapMode = "FlatFace"
sketch10.addGeometry([
    Part.LineSegment(V(-6.92, -11.32, 0), V(-6.92, -9.53, 0)),
    Part.LineSegment(V(-6.92, -9.53, 0), V(6.92, -9.53, 0)),
    Part.LineSegment(V(6.92, -9.53, 0), V(6.92, -11.32, 0)),
    Part.LineSegment(V(6.92, -11.32, 0), V(6.17, -11.32, 0)),
    Part.LineSegment(V(6.17, -11.32, 0), V(6.17, -10.96, 0)),
    Part.LineSegment(V(6.17, -10.96, 0), V(2.41, -10.96, 0)),
    Part.LineSegment(V(2.41, -10.96, 0), V(2.41, -12.06, 0)),
    Part.LineSegment(V(2.41, -12.06, 0), V(-2.41, -12.06, 0)),
    Part.LineSegment(V(-2.41, -12.06, 0), V(-2.41, -10.96, 0)),
    Part.LineSegment(V(-2.41, -10.96, 0), V(-6.17, -10.96, 0)),
    Part.LineSegment(V(-6.17, -10.96, 0), V(-6.17, -11.32, 0)),
    Part.LineSegment(V(-6.17, -11.32, 0), V(-6.92, -11.32, 0)),
], False)
sketch10.addGeometry(Part.LineSegment(V(6.92, -9.53, 0), V(-6.92, -9.53, 0)), True)
sketch10.addConstraint([
    Sketcher.Constraint("Coincident", 0, 2, 1, 1),
    Sketcher.Constraint("Coincident", 1, 2, 2, 1),
    Sketcher.Constraint("Coincident", 2, 2, 3, 1),
    Sketcher.Constraint("Coincident", 3, 2, 4, 1),
    Sketcher.Constraint("Coincident", 4, 2, 5, 1),
    Sketcher.Constraint("Coincident", 5, 2, 6, 1),
    Sketcher.Constraint("Coincident", 6, 2, 7, 1),
    Sketcher.Constraint("Coincident", 7, 2, 8, 1),
    Sketcher.Constraint("Coincident", 8, 2, 9, 1),
    Sketcher.Constraint("Coincident", 9, 2, 10, 1),
    Sketcher.Constraint("Coincident", 10, 2, 11, 1),
    Sketcher.Constraint("Coincident", 11, 2, 0, 1),
    Sketcher.Constraint("Vertical", 0),
    Sketcher.Constraint("Horizontal", 1),
    Sketcher.Constraint("Vertical", 2),
    Sketcher.Constraint("Horizontal", 3),
    Sketcher.Constraint("Vertical", 4),
    Sketcher.Constraint("Horizontal", 5),
    Sketcher.Constraint("Vertical", 6),
    Sketcher.Constraint("Horizontal", 7),
    Sketcher.Constraint("Vertical", 8),
    Sketcher.Constraint("Horizontal", 9),
    Sketcher.Constraint("Vertical", 10),
    Sketcher.Constraint("Horizontal", 11),
    Sketcher.Constraint("Horizontal", 12),
    Sketcher.Constraint("Coincident", 12, 1, 1, 2),
    Sketcher.Constraint("Symmetric", 5, 2, 8, 2, -2),
    Sketcher.Constraint("Symmetric", 3, 2, 10, 2, -2),
    Sketcher.Constraint("Vertical", 11, 2, 12, 2),
    Sketcher.Constraint("Equal", 3, 11),
    Sketcher.Constraint("DistanceY", 6, 2, 1, 2, Q("0.1 in")),
    Sketcher.Constraint("DistanceX", 1, 1, 1, 2, Q("0.545 in")),
    Sketcher.Constraint("DistanceX", 5, 2, 5, 1, Q("0.148 in")),
    Sketcher.Constraint("DistanceX", 7, 2, 7, 1, Q("0.1895 in")),
    Sketcher.Constraint("DistanceY", 0, 1, 0, 2, Q("0.0705 in")),
    Sketcher.Constraint("DistanceY", 4, 1, 4, 2, Q("0.0141 in")),
    Sketcher.Constraint("DistanceY", 0, 2, -1, 1, Q("0.375 in")),
])
revolution4 = body.newObject("PartDesign::Revolution", "Revolution003")
revolution4.Profile = sketch10
revolution4.ReferenceAxis = (sketch10, ["Axis0"])
revolution4.Angle = 360

doc.recompute()
